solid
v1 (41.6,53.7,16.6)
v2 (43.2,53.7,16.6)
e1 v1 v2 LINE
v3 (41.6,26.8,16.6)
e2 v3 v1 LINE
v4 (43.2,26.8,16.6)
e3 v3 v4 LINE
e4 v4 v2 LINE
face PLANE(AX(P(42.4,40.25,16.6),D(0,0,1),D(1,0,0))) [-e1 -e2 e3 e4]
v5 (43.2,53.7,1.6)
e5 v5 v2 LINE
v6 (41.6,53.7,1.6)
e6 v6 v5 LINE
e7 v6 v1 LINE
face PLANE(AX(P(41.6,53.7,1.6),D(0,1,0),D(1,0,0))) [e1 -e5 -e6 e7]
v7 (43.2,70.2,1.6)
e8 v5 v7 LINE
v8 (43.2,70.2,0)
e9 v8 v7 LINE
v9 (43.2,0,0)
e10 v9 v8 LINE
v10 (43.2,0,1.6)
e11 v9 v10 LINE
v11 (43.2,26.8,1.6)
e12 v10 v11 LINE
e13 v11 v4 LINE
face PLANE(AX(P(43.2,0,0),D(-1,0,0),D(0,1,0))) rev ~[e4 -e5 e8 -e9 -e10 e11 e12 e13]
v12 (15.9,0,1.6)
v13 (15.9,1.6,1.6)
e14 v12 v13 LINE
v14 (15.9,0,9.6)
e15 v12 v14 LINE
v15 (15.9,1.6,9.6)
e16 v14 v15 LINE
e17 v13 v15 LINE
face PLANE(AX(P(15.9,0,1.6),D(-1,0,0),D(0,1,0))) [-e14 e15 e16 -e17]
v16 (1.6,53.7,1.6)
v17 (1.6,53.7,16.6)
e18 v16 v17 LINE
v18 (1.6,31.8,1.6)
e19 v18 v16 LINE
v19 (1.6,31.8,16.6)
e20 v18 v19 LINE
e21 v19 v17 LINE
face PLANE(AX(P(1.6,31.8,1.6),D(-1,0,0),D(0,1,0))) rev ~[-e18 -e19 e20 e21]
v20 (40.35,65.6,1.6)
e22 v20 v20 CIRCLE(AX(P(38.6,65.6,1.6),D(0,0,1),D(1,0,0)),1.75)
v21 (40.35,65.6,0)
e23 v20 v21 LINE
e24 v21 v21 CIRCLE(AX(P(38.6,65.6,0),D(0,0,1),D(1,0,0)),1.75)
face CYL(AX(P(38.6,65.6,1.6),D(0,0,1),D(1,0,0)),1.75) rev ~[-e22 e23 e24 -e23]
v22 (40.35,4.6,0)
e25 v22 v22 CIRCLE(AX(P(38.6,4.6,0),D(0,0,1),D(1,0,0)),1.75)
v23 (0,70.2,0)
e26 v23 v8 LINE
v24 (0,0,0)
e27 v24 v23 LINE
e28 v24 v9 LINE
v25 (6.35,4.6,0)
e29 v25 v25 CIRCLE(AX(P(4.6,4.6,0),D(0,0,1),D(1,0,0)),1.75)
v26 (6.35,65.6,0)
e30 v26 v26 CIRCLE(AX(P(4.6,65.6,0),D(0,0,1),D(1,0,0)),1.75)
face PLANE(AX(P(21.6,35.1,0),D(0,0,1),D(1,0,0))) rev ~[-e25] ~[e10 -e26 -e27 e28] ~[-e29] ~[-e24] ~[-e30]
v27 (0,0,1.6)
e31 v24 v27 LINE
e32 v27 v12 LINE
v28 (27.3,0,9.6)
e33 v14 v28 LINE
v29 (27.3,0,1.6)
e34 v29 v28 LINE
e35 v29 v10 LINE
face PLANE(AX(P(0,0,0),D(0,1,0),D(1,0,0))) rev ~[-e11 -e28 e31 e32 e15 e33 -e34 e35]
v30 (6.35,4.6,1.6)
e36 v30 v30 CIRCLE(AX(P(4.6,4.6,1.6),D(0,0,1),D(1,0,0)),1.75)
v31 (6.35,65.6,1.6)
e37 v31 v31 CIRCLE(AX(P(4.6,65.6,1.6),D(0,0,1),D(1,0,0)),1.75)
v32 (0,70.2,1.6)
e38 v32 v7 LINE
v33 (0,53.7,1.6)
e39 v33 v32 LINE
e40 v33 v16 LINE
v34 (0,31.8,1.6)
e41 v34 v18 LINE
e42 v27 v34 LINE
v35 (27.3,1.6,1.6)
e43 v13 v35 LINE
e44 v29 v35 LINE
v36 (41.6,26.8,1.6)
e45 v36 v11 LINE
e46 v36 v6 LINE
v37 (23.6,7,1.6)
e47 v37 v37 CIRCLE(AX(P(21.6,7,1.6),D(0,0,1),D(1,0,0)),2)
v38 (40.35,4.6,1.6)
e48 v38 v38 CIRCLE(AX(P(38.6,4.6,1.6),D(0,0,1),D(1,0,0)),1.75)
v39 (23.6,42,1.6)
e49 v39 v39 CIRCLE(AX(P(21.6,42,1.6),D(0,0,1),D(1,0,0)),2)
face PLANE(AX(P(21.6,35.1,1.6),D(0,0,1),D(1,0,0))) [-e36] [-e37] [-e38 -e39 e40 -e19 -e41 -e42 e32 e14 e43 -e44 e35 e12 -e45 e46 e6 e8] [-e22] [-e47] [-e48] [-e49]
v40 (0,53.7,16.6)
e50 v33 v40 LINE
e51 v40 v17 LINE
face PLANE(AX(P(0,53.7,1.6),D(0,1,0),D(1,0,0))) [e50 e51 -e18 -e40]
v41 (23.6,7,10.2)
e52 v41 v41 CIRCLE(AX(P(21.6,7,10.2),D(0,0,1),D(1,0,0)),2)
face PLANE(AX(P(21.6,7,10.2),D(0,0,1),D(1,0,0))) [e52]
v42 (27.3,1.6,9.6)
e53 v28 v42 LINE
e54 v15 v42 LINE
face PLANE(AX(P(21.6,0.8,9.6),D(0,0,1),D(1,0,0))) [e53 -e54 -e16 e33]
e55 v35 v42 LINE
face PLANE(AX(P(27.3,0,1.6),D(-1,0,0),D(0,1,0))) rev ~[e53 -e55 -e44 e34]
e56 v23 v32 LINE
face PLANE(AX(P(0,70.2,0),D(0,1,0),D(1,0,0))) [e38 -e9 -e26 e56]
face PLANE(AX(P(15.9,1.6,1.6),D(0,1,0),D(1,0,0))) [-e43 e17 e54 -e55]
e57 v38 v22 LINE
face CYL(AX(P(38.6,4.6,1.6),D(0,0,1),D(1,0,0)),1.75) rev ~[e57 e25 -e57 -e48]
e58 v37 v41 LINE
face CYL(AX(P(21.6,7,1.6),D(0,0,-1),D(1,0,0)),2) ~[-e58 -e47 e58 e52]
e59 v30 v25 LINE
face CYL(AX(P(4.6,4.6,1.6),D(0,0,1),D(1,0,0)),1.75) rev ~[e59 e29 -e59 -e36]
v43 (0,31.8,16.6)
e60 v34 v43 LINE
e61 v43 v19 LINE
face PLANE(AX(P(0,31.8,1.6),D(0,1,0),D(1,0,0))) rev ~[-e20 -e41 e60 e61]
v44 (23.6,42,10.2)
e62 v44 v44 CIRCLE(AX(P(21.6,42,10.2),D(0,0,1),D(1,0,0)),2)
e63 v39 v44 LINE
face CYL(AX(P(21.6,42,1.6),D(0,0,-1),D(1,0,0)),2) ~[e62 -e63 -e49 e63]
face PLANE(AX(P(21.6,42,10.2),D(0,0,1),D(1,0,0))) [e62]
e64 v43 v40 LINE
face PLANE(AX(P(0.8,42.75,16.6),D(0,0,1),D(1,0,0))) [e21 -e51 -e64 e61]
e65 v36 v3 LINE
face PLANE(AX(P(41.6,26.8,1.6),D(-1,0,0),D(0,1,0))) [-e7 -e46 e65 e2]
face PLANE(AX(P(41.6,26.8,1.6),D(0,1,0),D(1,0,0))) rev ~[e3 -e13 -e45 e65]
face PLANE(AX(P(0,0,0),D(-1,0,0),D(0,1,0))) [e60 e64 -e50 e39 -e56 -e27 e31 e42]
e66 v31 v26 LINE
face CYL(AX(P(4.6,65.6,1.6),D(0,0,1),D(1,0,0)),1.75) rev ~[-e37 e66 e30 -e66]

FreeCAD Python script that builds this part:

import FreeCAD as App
import Part
import Sketcher

V = App.Vector

doc = App.newDocument("Part")
params = doc.addObject("Spreadsheet::Sheet", "Params")
for row, (alias, value) in enumerate([
    ("sketch1_width", "43.2 mm"),
    ("sketch1_height", "70.2 mm"),
    ("pad1_length", "1.6 mm"),
    ("sketch2_diameter", "3.5 mm"),
    ("pocket1_length", "1.6 mm"),
    ("sketch3_width", "11.4 mm"),
    ("sketch3_height", "1.6 mm"),
    ("pad2_length", "8 mm"),
    ("sketch4_width", "1.6 mm"),
    ("sketch4_height", "21.9 mm"),
    ("sketch4_height2", "26.9 mm"),
    ("pad3_length", "15 mm"),
    ("sketch5_diameter", "4 mm"),
    ("pad4_length", "8.6 mm"),
], start=1):
    params.set(f"A{row}", alias)
    params.set(f"B{row}", "=" + value)
    params.setAlias(f"B{row}", alias)

body = doc.addObject("PartDesign::Body", "Body")

sketch1 = doc.addObject("Sketcher::SketchObject", "Sketch")
body.addObject(sketch1)
sketch1.AttachmentSupport = (doc.XY_Plane, [""])
sketch1.MapMode = "FlatFace"
sketch1.addGeometry([
    Part.LineSegment(V(0, 70.2, 0), V(0, 0, 0)),
    Part.LineSegment(V(0, 0, 0), V(43.2, 0, 0)),
    Part.LineSegment(V(43.2, 0, 0), V(43.2, 70.2, 0)),
    Part.LineSegment(V(43.2, 70.2, 0), V(0, 70.2, 0)),
], False)
sketch1.addConstraint([
    Sketcher.Constraint("Coincident", 0, 2, 1, 1),
    Sketcher.Constraint("Coincident", 1, 2, 2, 1),
    Sketcher.Constraint("Coincident", 2, 2, 3, 1),
    Sketcher.Constraint("Coincident", 3, 2, 0, 1),
    Sketcher.Constraint("Vertical", 0),
    Sketcher.Constraint("Horizontal", 1),
    Sketcher.Constraint("Vertical", 2),
    Sketcher.Constraint("Horizontal", 3),
    Sketcher.Constraint("Coincident", 0, 2, -1, 1),
    Sketcher.Constraint("DistanceX", 1, 1, 1, 2, 43.2),
    Sketcher.Constraint("DistanceY", 0, 2, 0, 1, 70.2),
])
sketch1.setExpression("Constraints[9]", "Params.sketch1_width")
sketch1.setExpression("Constraints[10]", "Params.sketch1_height")
pad1 = doc.addObject("PartDesign::Pad", "Pad")
body.addObject(pad1)
pad1.Profile = sketch1
pad1.setExpression("Length", "Params.pad1_length")

sketch2 = doc.addObject("Sketcher::SketchObject", "Sketch001")
body.addObject(sketch2)
sketch2.AttachmentSupport = (doc.XY_Plane, [""])
sketch2.MapMode = "FlatFace"
sketch2.AttachmentOffset = App.Placement(V(0, 0, 1.6), App.Rotation())
sketch2.addGeometry([
    Part.Circle(V(4.6, 4.6, 0), V(0, 0, 1), 1.75),
    Part.Circle(V(38.6, 4.6, 0), V(0, 0, 1), 1.75),
    Part.Circle(V(4.6, 65.6, 0), V(0, 0, 1), 1.75),
    Part.Circle(V(38.6, 65.6, 0), V(0, 0, 1), 1.75),
], False)
sketch2.addConstraint([
    Sketcher.Constraint("Equal", 0, 1),
    Sketcher.Constraint("Equal", 1, 2),
    Sketcher.Constraint("Equal", 2, 3),
    Sketcher.Constraint("Horizontal", 0, 3, 1, 3),
    Sketcher.Constraint("Horizontal", 2, 3, 3, 3),
    Sketcher.Constraint("Vertical", 0, 3, 2, 3),
    Sketcher.Constraint("Vertical", 1, 3, 3, 3),
    Sketcher.Constraint("Diameter", 0, 3.5),
    Sketcher.Constraint("DistanceX", 0, 3, 1, 3, 34.0),
    Sketcher.Constraint("DistanceY", 0, 3, 2, 3, 61.0),
    Sketcher.Constraint("DistanceX", -1, 1, 0, 3, 4.6),
    Sketcher.Constraint("DistanceY", -1, 1, 0, 3, 4.6),
])
sketch2.setExpression("Constraints[7]", "Params.sketch2_diameter")
pocket1 = doc.addObject("PartDesign::Pocket", "Pocket")
body.addObject(pocket1)
pocket1.Profile = sketch2
pocket1.setExpression("Length", "Params.pocket1_length")

sketch3 = doc.addObject("Sketcher::SketchObject", "Sketch002")
body.addObject(sketch3)
sketch3.AttachmentSupport = (doc.XY_Plane, [""])
sketch3.MapMode = "FlatFace"
sketch3.AttachmentOffset = App.Placement(V(0, 0, 1.6), App.Rotation())
sketch3.addGeometry([
    Part.LineSegment(V(15.9, 1.6, 0), V(15.9, 0, 0)),
    Part.LineSegment(V(15.9, 0, 0), V(27.3, 0, 0)),
    Part.LineSegment(V(27.3, 0, 0), V(27.3, 1.6, 0)),
    Part.LineSegment(V(27.3, 1.6, 0), V(15.9, 1.6, 0)),
], False)
sketch3.addConstraint([
    Sketcher.Constraint("Coincident", 0, 2, 1, 1),
    Sketcher.Constraint("Coincident", 1, 2, 2, 1),
    Sketcher.Constraint("Coincident", 2, 2, 3, 1),
    Sketcher.Constraint("Coincident", 3, 2, 0, 1),
    Sketcher.Constraint("Vertical", 0),
    Sketcher.Constraint("Horizontal", 1),
    Sketcher.Constraint("Vertical", 2),
    Sketcher.Constraint("Horizontal", 3),
    Sketcher.Constraint("PointOnObject", 0, 2, -1),
    Sketcher.Constraint("DistanceX", 1, 1, 1, 2, 11.4),
    Sketcher.Constraint("DistanceY", 0, 2, 0, 1, 1.6),
    Sketcher.Constraint("DistanceX", -1, 1, 0, 2, 15.9),
])
sketch3.setExpression("Constraints[9]", "Params.sketch3_width")
sketch3.setExpression("Constraints[10]", "Params.sketch3_height")
pad2 = doc.addObject("PartDesign::Pad", "Pad001")
body.addObject(pad2)
pad2.Profile = sketch3
pad2.setExpression("Length", "Params.pad2_length")

sketch4 = doc.addObject("Sketcher::SketchObject", "Sketch003")
body.addObject(sketch4)
sketch4.AttachmentSupport = (doc.XY_Plane, [""])
sketch4.MapMode = "FlatFace"
sketch4.AttachmentOffset = App.Placement(V(0, 0, 1.6), App.Rotation())
sketch4.addGeometry([
    Part.LineSegment(V(0, 53.7, 0), V(0, 31.8, 0)),
    Part.LineSegment(V(0, 31.8, 0), V(1.6, 31.8, 0)),
    Part.LineSegment(V(1.6, 31.8, 0), V(1.6, 53.7, 0)),
    Part.LineSegment(V(1.6, 53.7, 0), V(0, 53.7, 0)),
    Part.LineSegment(V(41.6, 53.7, 0), V(41.6, 26.8, 0)),
    Part.LineSegment(V(41.6, 26.8, 0), V(43.2, 26.8, 0)),
    Part.LineSegment(V(43.2, 26.8, 0), V(43.2, 53.7, 0)),
    Part.LineSegment(V(43.2, 53.7, 0), V(41.6, 53.7, 0)),
], False)
sketch4.addConstraint([
    Sketcher.Constraint("Coincident", 0, 2, 1, 1),
    Sketcher.Constraint("Coincident", 1, 2, 2, 1),
    Sketcher.Constraint("Coincident", 2, 2, 3, 1),
    Sketcher.Constraint("Coincident", 3, 2, 0, 1),
    Sketcher.Constraint("Coincident", 4, 2, 5, 1),
    Sketcher.Constraint("Coincident", 5, 2, 6, 1),
    Sketcher.Constraint("Coincident", 6, 2, 7, 1),
    Sketcher.Constraint("Coincident", 7, 2, 4, 1),
    Sketcher.Constraint("Vertical", 0),
    Sketcher.Constraint("Horizontal", 1),
    Sketcher.Constraint("Vertical", 2),
    Sketcher.Constraint("Horizontal", 3),
    Sketcher.Constraint("Vertical", 4),
    Sketcher.Constraint("Horizontal", 5),
    Sketcher.Constraint("Vertical", 6),
    Sketcher.Constraint("Horizontal", 7),
    Sketcher.Constraint("PointOnObject", 0, 2, -2),
    Sketcher.Constraint("Horizontal", 3, 2, 6, 2),
    Sketcher.Constraint("Equal", 3, 5),
    Sketcher.Constraint("DistanceX", 1, 1, 1, 2, 1.6),
    Sketcher.Constraint("DistanceY", 0, 2, 0, 1, 21.9),
    Sketcher.Constraint("DistanceY", 4, 2, 4, 1, 26.9),
    Sketcher.Constraint("DistanceX", 1, 2, 4, 2, 40.0),
    Sketcher.Constraint("DistanceY", -1, 1, 0, 2, 31.8),
])
sketch4.setExpression("Constraints[19]", "Params.sketch4_width")
sketch4.setExpression("Constraints[20]", "Params.sketch4_height")
sketch4.setExpression("Constraints[21]", "Params.sketch4_height2")
pad3 = doc.addObject("PartDesign::Pad", "Pad002")
body.addObject(pad3)
pad3.Profile = sketch4
pad3.setExpression("Length", "Params.pad3_length")

sketch5 = doc.addObject("Sketcher::SketchObject", "Sketch004")
body.addObject(sketch5)
sketch5.AttachmentSupport = (doc.XY_Plane, [""])
sketch5.MapMode = "FlatFace"
sketch5.AttachmentOffset = App.Placement(V(0, 0, 1.6), App.Rotation())
sketch5.addGeometry([
    Part.Circle(V(21.6, 42, 0), V(0, 0, 1), 2),
    Part.Circle(V(21.6, 7, 0), V(0, 0, 1), 2),
], False)
sketch5.addConstraint([
    Sketcher.Constraint("Equal", 0, 1),
    Sketcher.Constraint("Vertical", 0, 3, 1, 3),
    Sketcher.Constraint("Diameter", 0, 4.0),
    Sketcher.Constraint("DistanceY", -1, 1, 0, 3, 42.0),
    Sketcher.Constraint("DistanceY", -1, 1, 1, 3, 7.0),
    Sketcher.Constraint("DistanceX", -1, 1, 0, 3, 21.6),
])
sketch5.setExpression("Constraints[2]", "Params.sketch5_diameter")
pad4 = doc.addObject("PartDesign::Pad", "Pad003")
body.addObject(pad4)
pad4.Profile = sketch5
pad4.setExpression("Length", "Params.pad4_length")

doc.recompute()
